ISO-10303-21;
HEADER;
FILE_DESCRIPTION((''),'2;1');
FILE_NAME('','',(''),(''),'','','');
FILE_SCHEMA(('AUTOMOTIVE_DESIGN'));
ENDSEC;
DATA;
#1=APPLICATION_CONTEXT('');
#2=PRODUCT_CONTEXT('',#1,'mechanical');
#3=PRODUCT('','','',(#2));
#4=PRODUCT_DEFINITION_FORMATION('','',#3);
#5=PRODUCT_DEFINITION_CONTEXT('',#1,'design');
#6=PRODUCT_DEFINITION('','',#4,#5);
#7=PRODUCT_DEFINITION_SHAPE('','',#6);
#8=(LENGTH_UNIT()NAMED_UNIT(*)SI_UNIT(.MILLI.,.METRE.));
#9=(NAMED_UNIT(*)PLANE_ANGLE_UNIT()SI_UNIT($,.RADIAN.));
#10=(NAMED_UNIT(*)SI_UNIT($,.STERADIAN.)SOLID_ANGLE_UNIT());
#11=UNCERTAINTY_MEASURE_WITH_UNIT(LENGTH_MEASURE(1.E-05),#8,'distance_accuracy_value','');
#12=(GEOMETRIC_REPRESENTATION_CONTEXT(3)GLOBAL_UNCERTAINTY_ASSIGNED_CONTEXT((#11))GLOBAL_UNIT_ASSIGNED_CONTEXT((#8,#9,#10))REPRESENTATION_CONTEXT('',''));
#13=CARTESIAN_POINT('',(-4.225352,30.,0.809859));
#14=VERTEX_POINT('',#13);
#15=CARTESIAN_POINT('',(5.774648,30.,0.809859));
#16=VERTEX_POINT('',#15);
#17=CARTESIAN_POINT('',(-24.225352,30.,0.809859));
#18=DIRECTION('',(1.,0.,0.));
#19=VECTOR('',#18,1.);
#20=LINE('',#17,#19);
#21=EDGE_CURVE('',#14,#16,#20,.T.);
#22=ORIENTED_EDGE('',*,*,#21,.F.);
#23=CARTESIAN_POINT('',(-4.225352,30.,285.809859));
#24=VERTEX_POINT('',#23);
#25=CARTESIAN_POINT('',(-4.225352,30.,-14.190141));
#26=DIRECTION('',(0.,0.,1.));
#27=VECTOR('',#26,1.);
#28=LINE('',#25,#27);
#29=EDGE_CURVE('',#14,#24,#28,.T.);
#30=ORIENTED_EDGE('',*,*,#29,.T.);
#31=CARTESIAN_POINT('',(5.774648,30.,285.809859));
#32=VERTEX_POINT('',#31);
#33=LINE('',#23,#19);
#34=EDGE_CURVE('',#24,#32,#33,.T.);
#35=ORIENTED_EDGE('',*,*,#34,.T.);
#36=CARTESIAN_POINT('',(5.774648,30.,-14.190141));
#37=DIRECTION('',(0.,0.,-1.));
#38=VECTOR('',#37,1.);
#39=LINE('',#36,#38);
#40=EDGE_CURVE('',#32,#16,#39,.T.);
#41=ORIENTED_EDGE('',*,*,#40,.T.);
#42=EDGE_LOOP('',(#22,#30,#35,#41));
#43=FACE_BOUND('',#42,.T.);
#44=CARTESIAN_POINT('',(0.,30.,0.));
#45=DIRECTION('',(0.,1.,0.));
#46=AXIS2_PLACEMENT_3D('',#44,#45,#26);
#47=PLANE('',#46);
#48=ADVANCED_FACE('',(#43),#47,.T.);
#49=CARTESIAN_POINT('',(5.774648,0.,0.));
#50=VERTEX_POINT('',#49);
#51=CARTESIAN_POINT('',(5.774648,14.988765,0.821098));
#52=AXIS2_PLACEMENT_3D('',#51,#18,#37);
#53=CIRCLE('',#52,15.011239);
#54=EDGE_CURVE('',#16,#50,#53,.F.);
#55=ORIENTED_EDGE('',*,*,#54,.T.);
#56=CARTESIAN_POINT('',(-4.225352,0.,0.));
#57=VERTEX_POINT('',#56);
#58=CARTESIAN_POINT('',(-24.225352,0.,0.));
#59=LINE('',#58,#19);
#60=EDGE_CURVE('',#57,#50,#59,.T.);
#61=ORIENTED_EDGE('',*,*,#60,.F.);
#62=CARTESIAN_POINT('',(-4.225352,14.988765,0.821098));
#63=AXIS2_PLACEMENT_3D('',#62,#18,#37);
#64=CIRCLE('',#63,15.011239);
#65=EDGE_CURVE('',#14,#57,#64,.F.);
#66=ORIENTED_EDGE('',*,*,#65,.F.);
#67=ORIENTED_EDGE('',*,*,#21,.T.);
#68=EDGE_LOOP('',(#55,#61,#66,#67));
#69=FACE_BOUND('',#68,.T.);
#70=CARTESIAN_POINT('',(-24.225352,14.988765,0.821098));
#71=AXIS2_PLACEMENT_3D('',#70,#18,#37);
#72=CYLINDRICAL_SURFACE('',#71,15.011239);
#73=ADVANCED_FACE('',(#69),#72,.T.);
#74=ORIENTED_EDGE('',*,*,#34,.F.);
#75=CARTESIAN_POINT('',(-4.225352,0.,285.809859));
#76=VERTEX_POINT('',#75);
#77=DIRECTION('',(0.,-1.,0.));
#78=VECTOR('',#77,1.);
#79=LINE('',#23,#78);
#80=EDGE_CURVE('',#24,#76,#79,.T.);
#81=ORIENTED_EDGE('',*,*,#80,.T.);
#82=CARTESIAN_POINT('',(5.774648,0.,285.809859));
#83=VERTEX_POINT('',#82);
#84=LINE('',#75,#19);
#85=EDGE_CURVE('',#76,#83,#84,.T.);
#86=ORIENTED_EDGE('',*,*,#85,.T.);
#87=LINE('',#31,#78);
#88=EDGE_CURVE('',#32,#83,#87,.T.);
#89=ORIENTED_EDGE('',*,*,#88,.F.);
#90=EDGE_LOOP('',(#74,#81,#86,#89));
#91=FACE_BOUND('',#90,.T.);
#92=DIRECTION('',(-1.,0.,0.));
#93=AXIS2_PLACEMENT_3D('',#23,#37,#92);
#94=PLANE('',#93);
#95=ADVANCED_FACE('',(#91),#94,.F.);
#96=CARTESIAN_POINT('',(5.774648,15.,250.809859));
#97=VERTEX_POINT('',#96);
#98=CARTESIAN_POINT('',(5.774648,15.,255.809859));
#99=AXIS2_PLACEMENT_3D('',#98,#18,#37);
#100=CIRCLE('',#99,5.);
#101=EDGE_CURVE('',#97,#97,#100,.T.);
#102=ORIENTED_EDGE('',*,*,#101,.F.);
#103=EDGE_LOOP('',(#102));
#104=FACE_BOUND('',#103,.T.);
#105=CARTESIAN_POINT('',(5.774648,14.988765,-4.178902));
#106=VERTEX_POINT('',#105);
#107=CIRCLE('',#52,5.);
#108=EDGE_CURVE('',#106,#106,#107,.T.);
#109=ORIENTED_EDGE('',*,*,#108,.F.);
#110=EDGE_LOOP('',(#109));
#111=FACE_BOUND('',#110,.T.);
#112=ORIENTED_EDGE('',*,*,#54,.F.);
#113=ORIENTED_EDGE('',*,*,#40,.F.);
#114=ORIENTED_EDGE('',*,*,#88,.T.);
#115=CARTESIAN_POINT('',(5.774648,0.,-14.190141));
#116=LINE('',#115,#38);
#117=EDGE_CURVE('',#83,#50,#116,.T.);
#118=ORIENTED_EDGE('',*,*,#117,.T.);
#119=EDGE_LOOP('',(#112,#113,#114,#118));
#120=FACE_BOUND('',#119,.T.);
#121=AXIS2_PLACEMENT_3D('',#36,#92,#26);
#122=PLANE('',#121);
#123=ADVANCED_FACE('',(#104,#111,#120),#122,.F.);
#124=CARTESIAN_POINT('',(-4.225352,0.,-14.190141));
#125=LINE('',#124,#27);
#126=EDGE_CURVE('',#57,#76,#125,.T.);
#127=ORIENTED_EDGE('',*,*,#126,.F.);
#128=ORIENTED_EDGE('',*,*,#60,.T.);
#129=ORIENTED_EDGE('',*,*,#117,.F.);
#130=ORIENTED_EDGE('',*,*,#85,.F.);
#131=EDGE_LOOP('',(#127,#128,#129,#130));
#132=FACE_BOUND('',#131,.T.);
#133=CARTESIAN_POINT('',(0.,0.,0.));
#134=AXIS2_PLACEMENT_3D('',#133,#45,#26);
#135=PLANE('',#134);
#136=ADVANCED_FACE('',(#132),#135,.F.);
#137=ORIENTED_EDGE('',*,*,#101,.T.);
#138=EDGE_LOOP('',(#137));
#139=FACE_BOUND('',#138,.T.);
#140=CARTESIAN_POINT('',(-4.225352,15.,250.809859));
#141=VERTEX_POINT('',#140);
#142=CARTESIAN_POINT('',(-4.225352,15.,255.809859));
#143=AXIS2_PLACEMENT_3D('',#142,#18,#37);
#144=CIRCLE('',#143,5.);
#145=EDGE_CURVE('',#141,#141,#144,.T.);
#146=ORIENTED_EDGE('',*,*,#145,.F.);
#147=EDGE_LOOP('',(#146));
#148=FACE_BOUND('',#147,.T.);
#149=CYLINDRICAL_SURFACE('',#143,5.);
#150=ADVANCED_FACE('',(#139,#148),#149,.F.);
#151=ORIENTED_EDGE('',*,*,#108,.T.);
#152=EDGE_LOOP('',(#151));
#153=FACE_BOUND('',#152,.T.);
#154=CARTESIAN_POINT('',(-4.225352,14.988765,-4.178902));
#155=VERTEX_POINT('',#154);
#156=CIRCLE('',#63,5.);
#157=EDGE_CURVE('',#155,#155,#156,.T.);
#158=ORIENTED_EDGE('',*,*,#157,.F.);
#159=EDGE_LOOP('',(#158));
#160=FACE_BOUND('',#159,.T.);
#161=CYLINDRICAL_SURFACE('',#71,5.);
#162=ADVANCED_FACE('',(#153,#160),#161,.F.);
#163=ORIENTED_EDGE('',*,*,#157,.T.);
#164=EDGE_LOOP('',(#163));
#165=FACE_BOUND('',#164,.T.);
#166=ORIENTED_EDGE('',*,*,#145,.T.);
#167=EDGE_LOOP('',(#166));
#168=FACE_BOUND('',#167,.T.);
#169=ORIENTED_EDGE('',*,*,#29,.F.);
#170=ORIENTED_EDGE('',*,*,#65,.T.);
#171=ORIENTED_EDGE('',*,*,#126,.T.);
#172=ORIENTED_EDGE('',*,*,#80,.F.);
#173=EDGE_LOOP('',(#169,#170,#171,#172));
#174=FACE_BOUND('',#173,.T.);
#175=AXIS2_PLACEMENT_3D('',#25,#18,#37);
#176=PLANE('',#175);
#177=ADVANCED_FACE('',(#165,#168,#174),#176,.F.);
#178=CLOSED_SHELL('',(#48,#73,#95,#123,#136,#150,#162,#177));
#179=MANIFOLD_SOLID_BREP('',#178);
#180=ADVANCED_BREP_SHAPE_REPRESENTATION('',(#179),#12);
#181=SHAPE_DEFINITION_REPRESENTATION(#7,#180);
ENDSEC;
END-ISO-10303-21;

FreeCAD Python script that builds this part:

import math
import FreeCAD as App
import Part
import Sketcher
from FreeCAD import Vector


def add_polygon(sketch, points):
    """Adds a closed chain of lines whose ends are joined by coincident constraints."""
    first, n = sketch.GeometryCount, len(points)
    for a, b in zip(points, points[1:] + points[:1]):
        sketch.addGeometry(Part.LineSegment(App.Vector(*a, 0), App.Vector(*b, 0)), False)
    for i in range(n):
        sketch.addConstraint(Sketcher.Constraint("Coincident", first + i, 2, first + (i + 1) % n, 1))

doc = App.newDocument("Part")
body = doc.addObject("PartDesign::Body", "Body")

sketch1 = doc.addObject("Sketcher::SketchObject", "Sketch")
body.addObject(sketch1)
sketch1.AttachmentSupport = (doc.XZ_Plane, [""])
sketch1.MapMode = "FlatFace"
add_polygon(sketch1, [(-4, -14), (-4, 286), (6, 286), (6, -14)])
sketch1.addConstraint([
    Sketcher.Constraint("Vertical", 0),
    Sketcher.Constraint("Horizontal", 1),
    Sketcher.Constraint("Vertical", 2),
    Sketcher.Constraint("Horizontal", 3),
    Sketcher.Constraint("DistanceX", 1, 1, 1, 2, 10.0),
    Sketcher.Constraint("DistanceY", 0, 1, 0, 2, 300.0),
    Sketcher.Constraint("DistanceY", -1, 1, 0, 2, 285.809859),
    Sketcher.Constraint("DistanceX", 0, 2, -1, 1, 4.225352),
])
pad1 = doc.addObject("PartDesign::Pad", "Pad")
body.addObject(pad1)
pad1.Profile = sketch1
pad1.Length = 30
pad1.Reversed = True

sketch2 = doc.addObject("Sketcher::SketchObject", "Sketch001")
body.addObject(sketch2)
sketch2.AttachmentSupport = (doc.YZ_Plane, [""])
sketch2.MapMode = "FlatFace"
sketch2.AttachmentOffset = App.Placement(Vector(0, 0, 5.774648), App.Rotation())
sketch2.addGeometry([
    Part.ArcOfCircle(Part.Circle(Vector(15, 1, 0), Vector(0, 0, 1), 15), math.radians(-90), math.radians(0)),
    Part.LineSegment(Vector(15, -14, 0), Vector(30, -14, 0)),
    Part.LineSegment(Vector(30, -14, 0), Vector(30, 1, 0)),
    Part.LineSegment(Vector(0, 0, 0), Vector(0, -14, 0)),
    Part.LineSegment(Vector(0, -14, 0), Vector(15, -14, 0)),
    Part.ArcOfCircle(Part.Circle(Vector(15, 1, 0), Vector(0, 0, 1), 15), math.radians(-177), math.radians(-90)),
    Part.Circle(Vector(15, 1, 0), Vector(0, 0, 1), 5),
], False)
sketch2.addConstraint([
    Sketcher.Constraint("Tangent", 0, 1, 1, 1),
    Sketcher.Constraint("Coincident", 1, 2, 2, 1),
    Sketcher.Constraint("Coincident", 2, 2, 0, 2),
    Sketcher.Constraint("Coincident", 3, 2, 4, 1),
    Sketcher.Constraint("Tangent", 4, 2, 5, 2),
    Sketcher.Constraint("Coincident", 5, 1, 3, 1),
    Sketcher.Constraint("Horizontal", 1),
    Sketcher.Constraint("Vertical", 2),
    Sketcher.Constraint("Vertical", 3),
    Sketcher.Constraint("Horizontal", 4),
    Sketcher.Constraint("Coincident", 5, 1, -1, 1),
    Sketcher.Constraint("Coincident", 5, 3, 0, 3),
    Sketcher.Constraint("Coincident", 6, 3, 0, 3),
    Sketcher.Constraint("Equal", 0, 5),
    Sketcher.Constraint("Diameter", 6, 10.0),
    Sketcher.Constraint("DistanceY", 2, 1, 2, 2, 15.0),
    Sketcher.Constraint("DistanceX", -1, 1, 1, 2, 30.0),
    Sketcher.Constraint("Radius", 0, 15.011239),
])
pocket1 = doc.addObject("PartDesign::Pocket", "Pocket")
body.addObject(pocket1)
pocket1.Profile = sketch2
pocket1.Length = 30

sketch3 = doc.addObject("Sketcher::SketchObject", "Sketch002")
body.addObject(sketch3)
sketch3.AttachmentSupport = (doc.YZ_Plane, [""])
sketch3.MapMode = "FlatFace"
sketch3.AttachmentOffset = App.Placement(Vector(0, 0, 5.774648), App.Rotation())
sketch3.addGeometry(Part.Circle(Vector(15, 256, 0), Vector(0, 0, 1), 5), False)
sketch3.addConstraint([
    Sketcher.Constraint("Diameter", 0, 10.0),
    Sketcher.Constraint("DistanceX", -1, 1, 0, 3, 15.0),
    Sketcher.Constraint("DistanceY", -1, 1, 0, 3, 255.809859),
])
pocket2 = doc.addObject("PartDesign::Pocket", "Pocket001")
body.addObject(pocket2)
pocket2.Profile = sketch3
pocket2.Length = 10

doc.recompute()
